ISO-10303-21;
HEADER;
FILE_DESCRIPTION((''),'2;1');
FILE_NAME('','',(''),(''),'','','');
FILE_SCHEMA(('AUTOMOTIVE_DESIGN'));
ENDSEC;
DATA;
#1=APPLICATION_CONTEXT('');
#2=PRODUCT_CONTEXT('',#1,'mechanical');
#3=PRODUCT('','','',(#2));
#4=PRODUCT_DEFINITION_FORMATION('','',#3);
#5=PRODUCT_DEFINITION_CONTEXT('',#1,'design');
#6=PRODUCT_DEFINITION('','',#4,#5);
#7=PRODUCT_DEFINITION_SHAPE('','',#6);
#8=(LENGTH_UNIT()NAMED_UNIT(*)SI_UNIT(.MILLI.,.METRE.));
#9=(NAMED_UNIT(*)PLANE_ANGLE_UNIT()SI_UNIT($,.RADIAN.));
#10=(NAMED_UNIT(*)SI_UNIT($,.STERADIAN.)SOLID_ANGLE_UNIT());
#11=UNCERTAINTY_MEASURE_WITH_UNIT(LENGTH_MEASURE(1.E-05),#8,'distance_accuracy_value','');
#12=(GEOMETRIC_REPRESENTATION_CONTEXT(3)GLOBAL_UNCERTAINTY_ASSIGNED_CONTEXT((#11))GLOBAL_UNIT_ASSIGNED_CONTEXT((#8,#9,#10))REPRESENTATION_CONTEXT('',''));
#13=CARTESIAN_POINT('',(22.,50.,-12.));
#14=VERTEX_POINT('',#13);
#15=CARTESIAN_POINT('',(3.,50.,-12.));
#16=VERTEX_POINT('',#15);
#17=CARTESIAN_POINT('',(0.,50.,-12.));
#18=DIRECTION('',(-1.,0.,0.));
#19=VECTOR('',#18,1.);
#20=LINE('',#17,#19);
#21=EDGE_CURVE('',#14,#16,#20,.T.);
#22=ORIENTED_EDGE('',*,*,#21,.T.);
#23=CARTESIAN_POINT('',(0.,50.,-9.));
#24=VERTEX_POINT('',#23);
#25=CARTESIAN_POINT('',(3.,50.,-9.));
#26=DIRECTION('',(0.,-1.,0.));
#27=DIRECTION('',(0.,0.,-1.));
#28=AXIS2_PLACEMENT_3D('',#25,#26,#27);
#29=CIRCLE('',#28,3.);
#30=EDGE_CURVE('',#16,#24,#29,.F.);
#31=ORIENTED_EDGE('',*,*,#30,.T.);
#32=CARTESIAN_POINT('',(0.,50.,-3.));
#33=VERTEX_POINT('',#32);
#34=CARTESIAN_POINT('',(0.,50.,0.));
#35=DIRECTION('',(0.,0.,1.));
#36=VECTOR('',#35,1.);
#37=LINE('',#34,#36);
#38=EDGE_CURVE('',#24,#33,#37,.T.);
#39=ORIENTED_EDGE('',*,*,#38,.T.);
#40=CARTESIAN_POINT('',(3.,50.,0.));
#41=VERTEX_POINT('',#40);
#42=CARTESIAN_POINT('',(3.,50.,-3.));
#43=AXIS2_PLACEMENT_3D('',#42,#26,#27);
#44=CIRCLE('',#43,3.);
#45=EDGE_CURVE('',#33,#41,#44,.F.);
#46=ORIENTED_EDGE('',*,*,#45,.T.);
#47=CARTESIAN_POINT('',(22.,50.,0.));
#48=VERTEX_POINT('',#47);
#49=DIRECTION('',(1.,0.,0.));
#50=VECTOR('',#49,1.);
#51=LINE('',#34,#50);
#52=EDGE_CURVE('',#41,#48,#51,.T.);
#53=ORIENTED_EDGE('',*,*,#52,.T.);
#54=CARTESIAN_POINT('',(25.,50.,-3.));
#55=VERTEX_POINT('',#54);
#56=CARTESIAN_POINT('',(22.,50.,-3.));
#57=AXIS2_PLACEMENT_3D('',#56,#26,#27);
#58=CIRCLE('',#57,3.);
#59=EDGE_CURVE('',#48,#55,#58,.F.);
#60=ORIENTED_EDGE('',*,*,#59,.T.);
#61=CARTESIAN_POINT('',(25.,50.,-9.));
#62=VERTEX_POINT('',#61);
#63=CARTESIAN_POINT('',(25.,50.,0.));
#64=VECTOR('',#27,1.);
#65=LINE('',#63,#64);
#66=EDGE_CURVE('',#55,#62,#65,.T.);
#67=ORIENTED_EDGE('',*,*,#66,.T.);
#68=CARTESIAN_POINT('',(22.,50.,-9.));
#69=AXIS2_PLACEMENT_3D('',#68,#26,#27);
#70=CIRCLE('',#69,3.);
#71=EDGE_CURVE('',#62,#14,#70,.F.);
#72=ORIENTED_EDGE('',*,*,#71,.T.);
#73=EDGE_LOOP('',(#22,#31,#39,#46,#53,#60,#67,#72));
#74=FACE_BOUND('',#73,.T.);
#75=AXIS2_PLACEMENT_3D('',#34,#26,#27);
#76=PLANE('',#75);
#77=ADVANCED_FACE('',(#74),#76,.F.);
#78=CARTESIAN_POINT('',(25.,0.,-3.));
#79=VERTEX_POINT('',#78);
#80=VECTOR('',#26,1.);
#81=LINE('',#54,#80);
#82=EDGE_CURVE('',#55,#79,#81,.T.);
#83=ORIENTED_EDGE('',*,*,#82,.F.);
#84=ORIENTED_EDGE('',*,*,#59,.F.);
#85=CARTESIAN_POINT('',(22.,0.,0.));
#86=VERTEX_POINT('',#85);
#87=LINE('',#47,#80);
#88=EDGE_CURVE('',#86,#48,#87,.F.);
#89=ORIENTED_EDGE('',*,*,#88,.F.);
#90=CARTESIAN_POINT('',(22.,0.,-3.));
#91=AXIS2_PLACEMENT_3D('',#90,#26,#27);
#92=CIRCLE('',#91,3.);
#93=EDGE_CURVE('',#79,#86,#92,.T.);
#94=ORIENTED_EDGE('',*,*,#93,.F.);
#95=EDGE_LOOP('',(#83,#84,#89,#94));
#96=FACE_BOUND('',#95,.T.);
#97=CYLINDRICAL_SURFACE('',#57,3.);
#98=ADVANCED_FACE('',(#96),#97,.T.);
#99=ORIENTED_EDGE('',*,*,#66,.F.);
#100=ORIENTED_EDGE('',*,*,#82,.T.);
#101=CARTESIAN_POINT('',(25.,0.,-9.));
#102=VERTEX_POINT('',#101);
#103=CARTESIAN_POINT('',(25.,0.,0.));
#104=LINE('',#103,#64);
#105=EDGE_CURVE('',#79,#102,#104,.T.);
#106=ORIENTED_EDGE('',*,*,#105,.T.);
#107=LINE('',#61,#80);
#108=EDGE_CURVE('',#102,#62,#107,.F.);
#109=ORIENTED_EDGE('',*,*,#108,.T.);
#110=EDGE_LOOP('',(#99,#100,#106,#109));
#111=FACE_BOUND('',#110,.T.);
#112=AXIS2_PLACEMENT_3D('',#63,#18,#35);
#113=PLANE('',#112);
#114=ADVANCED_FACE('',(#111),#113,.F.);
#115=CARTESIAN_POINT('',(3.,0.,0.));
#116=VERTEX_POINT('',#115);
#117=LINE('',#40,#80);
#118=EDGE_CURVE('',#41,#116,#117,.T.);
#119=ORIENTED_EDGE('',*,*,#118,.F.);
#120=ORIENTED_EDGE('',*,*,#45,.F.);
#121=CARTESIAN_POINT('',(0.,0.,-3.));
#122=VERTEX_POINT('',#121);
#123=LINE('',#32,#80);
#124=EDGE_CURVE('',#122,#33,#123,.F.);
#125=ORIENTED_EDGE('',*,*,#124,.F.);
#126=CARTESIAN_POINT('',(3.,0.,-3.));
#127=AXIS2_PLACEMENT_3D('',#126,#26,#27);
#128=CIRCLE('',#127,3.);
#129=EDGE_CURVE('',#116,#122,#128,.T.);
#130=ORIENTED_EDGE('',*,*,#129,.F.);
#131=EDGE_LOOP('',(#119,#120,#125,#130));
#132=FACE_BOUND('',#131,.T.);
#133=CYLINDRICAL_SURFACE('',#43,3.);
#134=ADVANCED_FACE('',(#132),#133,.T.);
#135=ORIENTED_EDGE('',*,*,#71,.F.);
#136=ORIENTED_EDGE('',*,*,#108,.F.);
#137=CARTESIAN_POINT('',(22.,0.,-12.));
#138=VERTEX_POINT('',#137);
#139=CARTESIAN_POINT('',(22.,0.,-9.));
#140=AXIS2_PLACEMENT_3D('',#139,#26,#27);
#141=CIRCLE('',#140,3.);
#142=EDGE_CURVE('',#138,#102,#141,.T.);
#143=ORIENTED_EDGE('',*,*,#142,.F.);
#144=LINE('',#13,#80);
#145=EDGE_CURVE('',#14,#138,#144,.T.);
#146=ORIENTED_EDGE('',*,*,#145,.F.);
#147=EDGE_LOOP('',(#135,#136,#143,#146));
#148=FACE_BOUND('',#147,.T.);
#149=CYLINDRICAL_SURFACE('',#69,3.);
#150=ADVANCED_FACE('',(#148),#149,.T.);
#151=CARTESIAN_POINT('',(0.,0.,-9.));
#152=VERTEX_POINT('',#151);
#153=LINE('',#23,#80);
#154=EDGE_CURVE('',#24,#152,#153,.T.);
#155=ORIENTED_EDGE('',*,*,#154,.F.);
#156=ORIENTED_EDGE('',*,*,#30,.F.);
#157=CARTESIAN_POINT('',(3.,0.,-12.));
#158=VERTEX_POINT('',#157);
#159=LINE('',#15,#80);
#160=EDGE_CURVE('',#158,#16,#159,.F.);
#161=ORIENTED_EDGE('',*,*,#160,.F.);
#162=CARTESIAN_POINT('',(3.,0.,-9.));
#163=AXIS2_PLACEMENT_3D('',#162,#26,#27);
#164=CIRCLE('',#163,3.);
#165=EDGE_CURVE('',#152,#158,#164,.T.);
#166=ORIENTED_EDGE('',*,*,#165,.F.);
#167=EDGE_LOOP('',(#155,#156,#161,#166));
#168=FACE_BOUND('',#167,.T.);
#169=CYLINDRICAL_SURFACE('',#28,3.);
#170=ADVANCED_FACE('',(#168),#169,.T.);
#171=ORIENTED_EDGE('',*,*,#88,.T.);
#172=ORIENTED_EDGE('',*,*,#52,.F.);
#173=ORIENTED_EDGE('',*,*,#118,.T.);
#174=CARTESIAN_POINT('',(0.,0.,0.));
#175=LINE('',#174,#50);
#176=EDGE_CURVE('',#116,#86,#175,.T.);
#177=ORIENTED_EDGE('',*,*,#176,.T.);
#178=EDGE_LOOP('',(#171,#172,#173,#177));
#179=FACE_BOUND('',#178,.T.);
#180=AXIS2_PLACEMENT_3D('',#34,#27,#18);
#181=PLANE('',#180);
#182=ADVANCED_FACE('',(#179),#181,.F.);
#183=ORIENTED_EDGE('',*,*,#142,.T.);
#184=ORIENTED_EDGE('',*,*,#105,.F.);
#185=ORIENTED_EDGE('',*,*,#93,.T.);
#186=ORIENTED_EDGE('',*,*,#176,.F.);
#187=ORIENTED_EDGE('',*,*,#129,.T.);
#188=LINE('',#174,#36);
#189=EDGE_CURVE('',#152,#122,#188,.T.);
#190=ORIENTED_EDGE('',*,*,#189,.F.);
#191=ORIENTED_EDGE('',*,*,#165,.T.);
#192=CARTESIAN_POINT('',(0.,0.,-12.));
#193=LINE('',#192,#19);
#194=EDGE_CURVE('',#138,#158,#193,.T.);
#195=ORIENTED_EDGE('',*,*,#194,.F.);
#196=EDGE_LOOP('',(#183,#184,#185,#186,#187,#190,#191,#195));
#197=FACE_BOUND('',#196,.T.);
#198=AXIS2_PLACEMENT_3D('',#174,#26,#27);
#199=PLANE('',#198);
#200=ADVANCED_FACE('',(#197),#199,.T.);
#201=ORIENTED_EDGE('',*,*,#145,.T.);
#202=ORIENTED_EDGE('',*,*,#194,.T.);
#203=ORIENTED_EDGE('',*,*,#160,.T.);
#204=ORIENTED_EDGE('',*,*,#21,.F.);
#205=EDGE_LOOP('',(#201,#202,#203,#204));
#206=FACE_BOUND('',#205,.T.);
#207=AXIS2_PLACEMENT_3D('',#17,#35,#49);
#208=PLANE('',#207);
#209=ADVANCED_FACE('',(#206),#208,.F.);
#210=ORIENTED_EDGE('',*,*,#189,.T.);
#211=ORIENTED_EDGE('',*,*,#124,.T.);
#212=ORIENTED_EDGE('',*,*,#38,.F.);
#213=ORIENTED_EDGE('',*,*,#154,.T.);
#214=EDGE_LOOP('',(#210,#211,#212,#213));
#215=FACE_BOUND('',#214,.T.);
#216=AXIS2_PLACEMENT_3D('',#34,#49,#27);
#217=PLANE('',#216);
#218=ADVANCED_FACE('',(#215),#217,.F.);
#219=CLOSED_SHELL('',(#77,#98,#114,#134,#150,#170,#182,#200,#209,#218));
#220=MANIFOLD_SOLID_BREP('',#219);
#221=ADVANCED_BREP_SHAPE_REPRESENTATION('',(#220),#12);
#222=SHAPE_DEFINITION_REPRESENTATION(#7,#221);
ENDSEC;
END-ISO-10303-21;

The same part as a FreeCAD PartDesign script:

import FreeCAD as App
import Part
import Sketcher


def edges_at(feature, points):
    """Names of the edges that pass closest to the given points."""
    edges = feature.Shape.Edges
    near = lambda p: min(range(len(edges)), key=lambda i: edges[i].distToShape(Part.Vertex(*p))[0])
    return sorted({f"Edge{near(p) + 1}" for p in points})

doc = App.newDocument("Part")
body = doc.addObject("PartDesign::Body", "Body")

sketch1 = doc.addObject("Sketcher::SketchObject", "Sketch")
body.addObject(sketch1)
sketch1.AttachmentSupport = (doc.XZ_Plane, [""])
sketch1.MapMode = "FlatFace"
sketch1.addGeometry(Part.LineSegment(App.Vector(0, -12, 0), App.Vector(0, 0, 0)), False)
sketch1.addGeometry(Part.LineSegment(App.Vector(0, 0, 0), App.Vector(25, 0, 0)), False)
sketch1.addGeometry(Part.LineSegment(App.Vector(25, 0, 0), App.Vector(25, -12, 0)), False)
sketch1.addGeometry(Part.LineSegment(App.Vector(25, -12, 0), App.Vector(0, -12, 0)), False)
sketch1.addConstraint(Sketcher.Constraint("Coincident", 0, 2, 1, 1))
sketch1.addConstraint(Sketcher.Constraint("Coincident", 1, 2, 2, 1))
sketch1.addConstraint(Sketcher.Constraint("Coincident", 2, 2, 3, 1))
sketch1.addConstraint(Sketcher.Constraint("Coincident", 3, 2, 0, 1))
sketch1.addConstraint(Sketcher.Constraint("Vertical", 0))
sketch1.addConstraint(Sketcher.Constraint("Horizontal", 1))
sketch1.addConstraint(Sketcher.Constraint("Vertical", 2))
sketch1.addConstraint(Sketcher.Constraint("Horizontal", 3))
sketch1.addConstraint(Sketcher.Constraint("Coincident", 0, 2, -1, 1))
sketch1.addConstraint(Sketcher.Constraint("DistanceX", 1, 1, 1, 2, 25.0))
sketch1.addConstraint(Sketcher.Constraint("DistanceY", 0, 1, 0, 2, 12.0))
pad1 = doc.addObject("PartDesign::Pad", "Pad")
body.addObject(pad1)
pad1.Profile = sketch1
pad1.Length = 50
pad1.Reversed = True
doc.recompute()

fillet = doc.addObject("PartDesign::Fillet", "Fillet")
body.addObject(fillet)
fillet.Base = (pad1, edges_at(pad1, [
    (0, 25, -12),
    (25, 25, -12),
    (25, 25, 0),
    (0, 25, 0),
]))
fillet.Radius = 3

doc.recompute()
